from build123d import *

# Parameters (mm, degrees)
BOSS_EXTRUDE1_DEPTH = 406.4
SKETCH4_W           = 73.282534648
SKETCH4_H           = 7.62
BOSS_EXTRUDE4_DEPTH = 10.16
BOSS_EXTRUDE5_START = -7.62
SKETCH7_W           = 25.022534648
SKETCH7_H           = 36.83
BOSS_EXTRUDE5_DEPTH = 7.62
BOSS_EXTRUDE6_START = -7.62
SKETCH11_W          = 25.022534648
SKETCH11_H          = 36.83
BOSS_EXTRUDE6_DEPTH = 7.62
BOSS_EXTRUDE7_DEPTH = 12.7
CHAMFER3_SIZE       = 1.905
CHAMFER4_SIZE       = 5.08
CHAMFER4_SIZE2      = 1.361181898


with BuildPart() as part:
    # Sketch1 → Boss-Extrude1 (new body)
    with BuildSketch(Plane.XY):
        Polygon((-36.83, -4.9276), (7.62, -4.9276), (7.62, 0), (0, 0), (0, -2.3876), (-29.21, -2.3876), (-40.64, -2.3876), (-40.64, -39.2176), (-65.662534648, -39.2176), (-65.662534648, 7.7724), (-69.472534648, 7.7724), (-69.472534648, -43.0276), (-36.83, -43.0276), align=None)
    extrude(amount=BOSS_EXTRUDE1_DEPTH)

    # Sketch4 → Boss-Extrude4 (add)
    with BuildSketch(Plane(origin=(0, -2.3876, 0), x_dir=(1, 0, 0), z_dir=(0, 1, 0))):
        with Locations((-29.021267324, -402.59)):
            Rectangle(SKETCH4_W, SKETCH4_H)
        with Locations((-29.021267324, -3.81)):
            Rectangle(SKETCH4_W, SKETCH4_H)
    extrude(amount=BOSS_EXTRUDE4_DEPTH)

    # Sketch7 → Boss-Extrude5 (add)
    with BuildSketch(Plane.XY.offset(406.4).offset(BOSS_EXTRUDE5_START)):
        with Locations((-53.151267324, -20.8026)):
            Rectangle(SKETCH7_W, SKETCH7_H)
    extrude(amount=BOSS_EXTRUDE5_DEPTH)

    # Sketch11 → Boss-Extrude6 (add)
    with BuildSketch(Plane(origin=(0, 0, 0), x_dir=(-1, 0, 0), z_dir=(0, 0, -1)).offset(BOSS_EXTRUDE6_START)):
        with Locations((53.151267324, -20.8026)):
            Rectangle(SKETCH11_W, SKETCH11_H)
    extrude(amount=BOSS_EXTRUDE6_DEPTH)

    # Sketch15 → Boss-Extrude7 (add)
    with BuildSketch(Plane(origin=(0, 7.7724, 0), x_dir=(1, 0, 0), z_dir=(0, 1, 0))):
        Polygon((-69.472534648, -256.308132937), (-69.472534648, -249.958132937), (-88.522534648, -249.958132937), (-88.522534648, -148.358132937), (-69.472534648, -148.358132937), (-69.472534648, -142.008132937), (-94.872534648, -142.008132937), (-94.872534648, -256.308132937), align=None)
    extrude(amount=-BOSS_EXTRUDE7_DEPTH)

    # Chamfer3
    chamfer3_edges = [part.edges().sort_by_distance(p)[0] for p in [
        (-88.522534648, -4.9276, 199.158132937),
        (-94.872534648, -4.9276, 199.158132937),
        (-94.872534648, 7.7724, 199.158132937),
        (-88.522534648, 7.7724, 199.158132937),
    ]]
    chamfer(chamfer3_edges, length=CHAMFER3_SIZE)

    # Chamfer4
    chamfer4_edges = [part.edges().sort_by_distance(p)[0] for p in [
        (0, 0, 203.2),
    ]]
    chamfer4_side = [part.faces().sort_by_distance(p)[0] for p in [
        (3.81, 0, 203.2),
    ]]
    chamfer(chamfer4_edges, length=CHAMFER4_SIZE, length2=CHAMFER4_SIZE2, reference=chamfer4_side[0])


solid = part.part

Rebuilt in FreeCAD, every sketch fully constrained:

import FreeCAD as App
import Part
import Sketcher
from FreeCAD import Vector
Q = App.Units.Quantity


def edges_at(feature, points):
    """Names of the edges that pass closest to the given points."""
    edges = feature.Shape.Edges
    near = lambda p: min(range(len(edges)), key=lambda i: edges[i].distToShape(Part.Vertex(*p))[0])
    return sorted({f"Edge{near(p) + 1}" for p in points})


def add_polygon(sketch, points):
    """Adds a closed chain of lines whose ends are joined by coincident constraints."""
    first, n = sketch.GeometryCount, len(points)
    for a, b in zip(points, points[1:] + points[:1]):
        sketch.addGeometry(Part.LineSegment(App.Vector(*a, 0), App.Vector(*b, 0)), False)
    for i in range(n):
        sketch.addConstraint(Sketcher.Constraint("Coincident", first + i, 2, first + (i + 1) % n, 1))

doc = App.newDocument("Part")
body = doc.addObject("PartDesign::Body", "Body")

# Sketch on XY plane
sketch1 = body.newObject("Sketcher::SketchObject", "Sketch")
sketch1.AttachmentSupport = (doc.getObject("XY_Plane"), [""])
sketch1.MapMode = "FlatFace"
add_polygon(sketch1, [(-36.8, -4.9), (7.6, -4.9), (7.6, 0), (0, 0), (0, -2.4), (-40.6, -2.4), (-40.6, -39.2), (-65.7, -39.2), (-65.7, 7.8), (-69.5, 7.8), (-69.5, -43), (-36.8, -43)])  # lines 0-11
sketch1.addConstraint(Sketcher.Constraint("Horizontal", 0))
sketch1.addConstraint(Sketcher.Constraint("Vertical", 1))
sketch1.addConstraint(Sketcher.Constraint("Horizontal", 2))
sketch1.addConstraint(Sketcher.Constraint("Vertical", 3))
sketch1.addConstraint(Sketcher.Constraint("Horizontal", 4))
sketch1.addConstraint(Sketcher.Constraint("Vertical", 5))
sketch1.addConstraint(Sketcher.Constraint("Horizontal", 6))
sketch1.addConstraint(Sketcher.Constraint("Vertical", 7))
sketch1.addConstraint(Sketcher.Constraint("Horizontal", 8))
sketch1.addConstraint(Sketcher.Constraint("Vertical", 9))
sketch1.addConstraint(Sketcher.Constraint("Horizontal", 10))
sketch1.addConstraint(Sketcher.Constraint("Vertical", 11))
sketch1.addConstraint(Sketcher.Constraint("Coincident", 2, 2, -1, 1))
sketch1.addConstraint(Sketcher.Constraint("DistanceY", 9, 2, 9, 1, Q("2 in")))
sketch1.addConstraint(Sketcher.Constraint("DistanceX", 2, 2, 2, 1, Q("0.3 in")))
sketch1.addConstraint(Sketcher.Constraint("DistanceX", 4, 2, 4, 1, Q("1.6 in")))
sketch1.addConstraint(Sketcher.Constraint("DistanceY", 11, 1, 11, 2, Q("1.5 in")))
sketch1.addConstraint(Sketcher.Constraint("DistanceX", 0, 1, 0, 2, Q("1.75 in")))
sketch1.addConstraint(Sketcher.Constraint("DistanceX", 8, 2, 8, 1, Q("0.15 in")))
sketch1.addConstraint(Sketcher.Constraint("DistanceY", 5, 2, 5, 1, Q("1.45 in")))
sketch1.addConstraint(Sketcher.Constraint("DistanceY", 7, 1, 7, 2, Q("1.85 in")))
sketch1.addConstraint(Sketcher.Constraint("DistanceY", 1, 1, 1, 2, Q("0.194 in")))
sketch1.addConstraint(Sketcher.Constraint("DistanceX", 6, 2, 6, 1, Q("25.022535 mm")))
pad1 = body.newObject("PartDesign::Pad", "Pad")
pad1.Profile = sketch1
pad1.Length = Q("16 in")

# Sketch on XZ plane
sketch2 = body.newObject("Sketcher::SketchObject", "Sketch001")
sketch2.AttachmentSupport = (doc.getObject("XZ_Plane"), [""])
sketch2.MapMode = "FlatFace"
sketch2.AttachmentOffset = App.Placement(Vector(0, 0, 0.094 * 25.4), App.Rotation())
add_polygon(sketch2, [(-66, 399), (-66, 406), (8, 406), (8, 399)])  # lines 0-3
add_polygon(sketch2, [(-66, 0), (-66, 8), (8, 8), (8, 0)])  # lines 4-7
sketch2.addConstraint(Sketcher.Constraint("Vertical", 0))
sketch2.addConstraint(Sketcher.Constraint("Horizontal", 1))
sketch2.addConstraint(Sketcher.Constraint("Vertical", 2))
sketch2.addConstraint(Sketcher.Constraint("Horizontal", 3))
sketch2.addConstraint(Sketcher.Constraint("Vertical", 4))
sketch2.addConstraint(Sketcher.Constraint("Horizontal", 5))
sketch2.addConstraint(Sketcher.Constraint("Vertical", 6))
sketch2.addConstraint(Sketcher.Constraint("Horizontal", 7))
sketch2.addConstraint(Sketcher.Constraint("PointOnObject", 6, 2, -1))
sketch2.addConstraint(Sketcher.Constraint("Vertical", 3, 2, 4, 2))
sketch2.addConstraint(Sketcher.Constraint("Vertical", 2, 2, 5, 2))
sketch2.addConstraint(Sketcher.Constraint("Equal", 2, 4))
sketch2.addConstraint(Sketcher.Constraint("DistanceY", 0, 1, 0, 2, Q("0.3 in")))
sketch2.addConstraint(Sketcher.Constraint("DistanceY", -1, 1, 0, 2, Q("16 in")))
sketch2.addConstraint(Sketcher.Constraint("DistanceX", -1, 1, 1, 2, Q("0.3 in")))
sketch2.addConstraint(Sketcher.Constraint("DistanceX", 1, 1, 1, 2, Q("73.282535 mm")))
pad2 = body.newObject("PartDesign::Pad", "Pad001")
pad2.Profile = sketch2
pad2.Length = Q("0.4 in")
pad2.Reversed = True

# Sketch on XY plane
sketch3 = body.newObject("Sketcher::SketchObject", "Sketch002")
sketch3.AttachmentSupport = (doc.getObject("XY_Plane"), [""])
sketch3.MapMode = "FlatFace"
sketch3.AttachmentOffset = App.Placement(Vector(0, 0, 15.7 * 25.4), App.Rotation())
add_polygon(sketch3, [(-66, -2), (-66, -39), (-41, -39), (-41, -2)])  # lines 0-3
sketch3.addConstraint(Sketcher.Constraint("Vertical", 0))
sketch3.addConstraint(Sketcher.Constraint("Horizontal", 1))
sketch3.addConstraint(Sketcher.Constraint("Vertical", 2))
sketch3.addConstraint(Sketcher.Constraint("Horizontal", 3))
sketch3.addConstraint(Sketcher.Constraint("DistanceY", 0, 2, 0, 1, Q("1.45 in")))
sketch3.addConstraint(Sketcher.Constraint("DistanceX", 1, 2, -1, 1, Q("1.6 in")))
sketch3.addConstraint(Sketcher.Constraint("DistanceY", 0, 2, -1, 1, Q("1.544 in")))
sketch3.addConstraint(Sketcher.Constraint("DistanceX", 1, 1, 1, 2, Q("25.022535 mm")))
pad3 = body.newObject("PartDesign::Pad", "Pad002")
pad3.Profile = sketch3
pad3.Length = Q("0.3 in")

# Sketch on XY plane
sketch4 = body.newObject("Sketcher::SketchObject", "Sketch003")
sketch4.AttachmentSupport = (doc.getObject("XY_Plane"), [""])
sketch4.MapMode = "FlatFace"
sketch4.AttachmentOffset = App.Placement(Vector(0, 0, 0.3 * 25.4), App.Rotation())
add_polygon(sketch4, [(-41, -2), (-41, -39), (-66, -39), (-66, -2)])  # lines 0-3
sketch4.addConstraint(Sketcher.Constraint("Vertical", 0))
sketch4.addConstraint(Sketcher.Constraint("Horizontal", 1))
sketch4.addConstraint(Sketcher.Constraint("Vertical", 2))
sketch4.addConstraint(Sketcher.Constraint("Horizontal", 3))
sketch4.addConstraint(Sketcher.Constraint("DistanceY", 0, 2, 0, 1, Q("1.45 in")))
sketch4.addConstraint(Sketcher.Constraint("DistanceX", 0, 2, -1, 1, Q("1.6 in")))
sketch4.addConstraint(Sketcher.Constraint("DistanceY", 0, 2, -1, 1, Q("1.544 in")))
sketch4.addConstraint(Sketcher.Constraint("DistanceX", 1, 2, 1, 1, Q("25.022535 mm")))
pad4 = body.newObject("PartDesign::Pad", "Pad003")
pad4.Profile = sketch4
pad4.Length = Q("0.3 in")
pad4.Reversed = True

# Sketch on XZ plane
sketch5 = body.newObject("Sketcher::SketchObject", "Sketch004")
sketch5.AttachmentSupport = (doc.getObject("XZ_Plane"), [""])
sketch5.MapMode = "FlatFace"
sketch5.AttachmentOffset = App.Placement(Vector(0, 0, -0.306 * 25.4), App.Rotation())
add_polygon(sketch5, [(-69, 256), (-69, 250), (-89, 250), (-89, 148), (-69, 148), (-69, 142), (-95, 142), (-95, 256)])  # lines 0-7
sketch5.addConstraint(Sketcher.Constraint("Vertical", 0))
sketch5.addConstraint(Sketcher.Constraint("Horizontal", 1))
sketch5.addConstraint(Sketcher.Constraint("Vertical", 2))
sketch5.addConstraint(Sketcher.Constraint("Horizontal", 3))
sketch5.addConstraint(Sketcher.Constraint("Vertical", 4))
sketch5.addConstraint(Sketcher.Constraint("Horizontal", 5))
sketch5.addConstraint(Sketcher.Constraint("Vertical", 6))
sketch5.addConstraint(Sketcher.Constraint("Horizontal", 7))
sketch5.addConstraint(Sketcher.Constraint("Vertical", 0, 2, 3, 2))
sketch5.addConstraint(Sketcher.Constraint("Equal", 0, 4))
sketch5.addConstraint(Sketcher.Constraint("DistanceX", 5, 2, 5, 1, Q("1 in")))
sketch5.addConstraint(Sketcher.Constraint("DistanceY", 2, 2, 2, 1, Q("4 in")))
sketch5.addConstraint(Sketcher.Constraint("DistanceY", 6, 1, 6, 2, Q("4.5 in")))
sketch5.addConstraint(Sketcher.Constraint("DistanceX", 1, 2, 1, 1, Q("0.75 in")))
sketch5.addConstraint(Sketcher.Constraint("DistanceX", 0, 2, -1, 1, Q("69.472535 mm")))
sketch5.addConstraint(Sketcher.Constraint("DistanceY", -1, 1, 0, 2, Q("249.958133 mm")))
pad5 = body.newObject("PartDesign::Pad", "Pad004")
pad5.Profile = sketch5
pad5.Length = Q("0.5 in")
doc.recompute()

chamfer = body.newObject("PartDesign::Chamfer", "Chamfer")
chamfer.Base = (pad5, edges_at(pad5, [
    (-88.523, -4.928, 199.158),
    (-94.873, -4.928, 199.158),
    (-94.873, 7.772, 199.158),
    (-88.523, 7.772, 199.158),
]))
chamfer.Size = Q("0.075 in")
doc.recompute()

chamfer2 = body.newObject("PartDesign::Chamfer", "Chamfer001")
chamfer2.Base = (chamfer, edges_at(chamfer, [(0, 0, 203.2)]))
chamfer2.ChamferType = "Two distances"
chamfer2.Size = Q("0.2 in")
chamfer2.Size2 = 1.361182

doc.recompute()
